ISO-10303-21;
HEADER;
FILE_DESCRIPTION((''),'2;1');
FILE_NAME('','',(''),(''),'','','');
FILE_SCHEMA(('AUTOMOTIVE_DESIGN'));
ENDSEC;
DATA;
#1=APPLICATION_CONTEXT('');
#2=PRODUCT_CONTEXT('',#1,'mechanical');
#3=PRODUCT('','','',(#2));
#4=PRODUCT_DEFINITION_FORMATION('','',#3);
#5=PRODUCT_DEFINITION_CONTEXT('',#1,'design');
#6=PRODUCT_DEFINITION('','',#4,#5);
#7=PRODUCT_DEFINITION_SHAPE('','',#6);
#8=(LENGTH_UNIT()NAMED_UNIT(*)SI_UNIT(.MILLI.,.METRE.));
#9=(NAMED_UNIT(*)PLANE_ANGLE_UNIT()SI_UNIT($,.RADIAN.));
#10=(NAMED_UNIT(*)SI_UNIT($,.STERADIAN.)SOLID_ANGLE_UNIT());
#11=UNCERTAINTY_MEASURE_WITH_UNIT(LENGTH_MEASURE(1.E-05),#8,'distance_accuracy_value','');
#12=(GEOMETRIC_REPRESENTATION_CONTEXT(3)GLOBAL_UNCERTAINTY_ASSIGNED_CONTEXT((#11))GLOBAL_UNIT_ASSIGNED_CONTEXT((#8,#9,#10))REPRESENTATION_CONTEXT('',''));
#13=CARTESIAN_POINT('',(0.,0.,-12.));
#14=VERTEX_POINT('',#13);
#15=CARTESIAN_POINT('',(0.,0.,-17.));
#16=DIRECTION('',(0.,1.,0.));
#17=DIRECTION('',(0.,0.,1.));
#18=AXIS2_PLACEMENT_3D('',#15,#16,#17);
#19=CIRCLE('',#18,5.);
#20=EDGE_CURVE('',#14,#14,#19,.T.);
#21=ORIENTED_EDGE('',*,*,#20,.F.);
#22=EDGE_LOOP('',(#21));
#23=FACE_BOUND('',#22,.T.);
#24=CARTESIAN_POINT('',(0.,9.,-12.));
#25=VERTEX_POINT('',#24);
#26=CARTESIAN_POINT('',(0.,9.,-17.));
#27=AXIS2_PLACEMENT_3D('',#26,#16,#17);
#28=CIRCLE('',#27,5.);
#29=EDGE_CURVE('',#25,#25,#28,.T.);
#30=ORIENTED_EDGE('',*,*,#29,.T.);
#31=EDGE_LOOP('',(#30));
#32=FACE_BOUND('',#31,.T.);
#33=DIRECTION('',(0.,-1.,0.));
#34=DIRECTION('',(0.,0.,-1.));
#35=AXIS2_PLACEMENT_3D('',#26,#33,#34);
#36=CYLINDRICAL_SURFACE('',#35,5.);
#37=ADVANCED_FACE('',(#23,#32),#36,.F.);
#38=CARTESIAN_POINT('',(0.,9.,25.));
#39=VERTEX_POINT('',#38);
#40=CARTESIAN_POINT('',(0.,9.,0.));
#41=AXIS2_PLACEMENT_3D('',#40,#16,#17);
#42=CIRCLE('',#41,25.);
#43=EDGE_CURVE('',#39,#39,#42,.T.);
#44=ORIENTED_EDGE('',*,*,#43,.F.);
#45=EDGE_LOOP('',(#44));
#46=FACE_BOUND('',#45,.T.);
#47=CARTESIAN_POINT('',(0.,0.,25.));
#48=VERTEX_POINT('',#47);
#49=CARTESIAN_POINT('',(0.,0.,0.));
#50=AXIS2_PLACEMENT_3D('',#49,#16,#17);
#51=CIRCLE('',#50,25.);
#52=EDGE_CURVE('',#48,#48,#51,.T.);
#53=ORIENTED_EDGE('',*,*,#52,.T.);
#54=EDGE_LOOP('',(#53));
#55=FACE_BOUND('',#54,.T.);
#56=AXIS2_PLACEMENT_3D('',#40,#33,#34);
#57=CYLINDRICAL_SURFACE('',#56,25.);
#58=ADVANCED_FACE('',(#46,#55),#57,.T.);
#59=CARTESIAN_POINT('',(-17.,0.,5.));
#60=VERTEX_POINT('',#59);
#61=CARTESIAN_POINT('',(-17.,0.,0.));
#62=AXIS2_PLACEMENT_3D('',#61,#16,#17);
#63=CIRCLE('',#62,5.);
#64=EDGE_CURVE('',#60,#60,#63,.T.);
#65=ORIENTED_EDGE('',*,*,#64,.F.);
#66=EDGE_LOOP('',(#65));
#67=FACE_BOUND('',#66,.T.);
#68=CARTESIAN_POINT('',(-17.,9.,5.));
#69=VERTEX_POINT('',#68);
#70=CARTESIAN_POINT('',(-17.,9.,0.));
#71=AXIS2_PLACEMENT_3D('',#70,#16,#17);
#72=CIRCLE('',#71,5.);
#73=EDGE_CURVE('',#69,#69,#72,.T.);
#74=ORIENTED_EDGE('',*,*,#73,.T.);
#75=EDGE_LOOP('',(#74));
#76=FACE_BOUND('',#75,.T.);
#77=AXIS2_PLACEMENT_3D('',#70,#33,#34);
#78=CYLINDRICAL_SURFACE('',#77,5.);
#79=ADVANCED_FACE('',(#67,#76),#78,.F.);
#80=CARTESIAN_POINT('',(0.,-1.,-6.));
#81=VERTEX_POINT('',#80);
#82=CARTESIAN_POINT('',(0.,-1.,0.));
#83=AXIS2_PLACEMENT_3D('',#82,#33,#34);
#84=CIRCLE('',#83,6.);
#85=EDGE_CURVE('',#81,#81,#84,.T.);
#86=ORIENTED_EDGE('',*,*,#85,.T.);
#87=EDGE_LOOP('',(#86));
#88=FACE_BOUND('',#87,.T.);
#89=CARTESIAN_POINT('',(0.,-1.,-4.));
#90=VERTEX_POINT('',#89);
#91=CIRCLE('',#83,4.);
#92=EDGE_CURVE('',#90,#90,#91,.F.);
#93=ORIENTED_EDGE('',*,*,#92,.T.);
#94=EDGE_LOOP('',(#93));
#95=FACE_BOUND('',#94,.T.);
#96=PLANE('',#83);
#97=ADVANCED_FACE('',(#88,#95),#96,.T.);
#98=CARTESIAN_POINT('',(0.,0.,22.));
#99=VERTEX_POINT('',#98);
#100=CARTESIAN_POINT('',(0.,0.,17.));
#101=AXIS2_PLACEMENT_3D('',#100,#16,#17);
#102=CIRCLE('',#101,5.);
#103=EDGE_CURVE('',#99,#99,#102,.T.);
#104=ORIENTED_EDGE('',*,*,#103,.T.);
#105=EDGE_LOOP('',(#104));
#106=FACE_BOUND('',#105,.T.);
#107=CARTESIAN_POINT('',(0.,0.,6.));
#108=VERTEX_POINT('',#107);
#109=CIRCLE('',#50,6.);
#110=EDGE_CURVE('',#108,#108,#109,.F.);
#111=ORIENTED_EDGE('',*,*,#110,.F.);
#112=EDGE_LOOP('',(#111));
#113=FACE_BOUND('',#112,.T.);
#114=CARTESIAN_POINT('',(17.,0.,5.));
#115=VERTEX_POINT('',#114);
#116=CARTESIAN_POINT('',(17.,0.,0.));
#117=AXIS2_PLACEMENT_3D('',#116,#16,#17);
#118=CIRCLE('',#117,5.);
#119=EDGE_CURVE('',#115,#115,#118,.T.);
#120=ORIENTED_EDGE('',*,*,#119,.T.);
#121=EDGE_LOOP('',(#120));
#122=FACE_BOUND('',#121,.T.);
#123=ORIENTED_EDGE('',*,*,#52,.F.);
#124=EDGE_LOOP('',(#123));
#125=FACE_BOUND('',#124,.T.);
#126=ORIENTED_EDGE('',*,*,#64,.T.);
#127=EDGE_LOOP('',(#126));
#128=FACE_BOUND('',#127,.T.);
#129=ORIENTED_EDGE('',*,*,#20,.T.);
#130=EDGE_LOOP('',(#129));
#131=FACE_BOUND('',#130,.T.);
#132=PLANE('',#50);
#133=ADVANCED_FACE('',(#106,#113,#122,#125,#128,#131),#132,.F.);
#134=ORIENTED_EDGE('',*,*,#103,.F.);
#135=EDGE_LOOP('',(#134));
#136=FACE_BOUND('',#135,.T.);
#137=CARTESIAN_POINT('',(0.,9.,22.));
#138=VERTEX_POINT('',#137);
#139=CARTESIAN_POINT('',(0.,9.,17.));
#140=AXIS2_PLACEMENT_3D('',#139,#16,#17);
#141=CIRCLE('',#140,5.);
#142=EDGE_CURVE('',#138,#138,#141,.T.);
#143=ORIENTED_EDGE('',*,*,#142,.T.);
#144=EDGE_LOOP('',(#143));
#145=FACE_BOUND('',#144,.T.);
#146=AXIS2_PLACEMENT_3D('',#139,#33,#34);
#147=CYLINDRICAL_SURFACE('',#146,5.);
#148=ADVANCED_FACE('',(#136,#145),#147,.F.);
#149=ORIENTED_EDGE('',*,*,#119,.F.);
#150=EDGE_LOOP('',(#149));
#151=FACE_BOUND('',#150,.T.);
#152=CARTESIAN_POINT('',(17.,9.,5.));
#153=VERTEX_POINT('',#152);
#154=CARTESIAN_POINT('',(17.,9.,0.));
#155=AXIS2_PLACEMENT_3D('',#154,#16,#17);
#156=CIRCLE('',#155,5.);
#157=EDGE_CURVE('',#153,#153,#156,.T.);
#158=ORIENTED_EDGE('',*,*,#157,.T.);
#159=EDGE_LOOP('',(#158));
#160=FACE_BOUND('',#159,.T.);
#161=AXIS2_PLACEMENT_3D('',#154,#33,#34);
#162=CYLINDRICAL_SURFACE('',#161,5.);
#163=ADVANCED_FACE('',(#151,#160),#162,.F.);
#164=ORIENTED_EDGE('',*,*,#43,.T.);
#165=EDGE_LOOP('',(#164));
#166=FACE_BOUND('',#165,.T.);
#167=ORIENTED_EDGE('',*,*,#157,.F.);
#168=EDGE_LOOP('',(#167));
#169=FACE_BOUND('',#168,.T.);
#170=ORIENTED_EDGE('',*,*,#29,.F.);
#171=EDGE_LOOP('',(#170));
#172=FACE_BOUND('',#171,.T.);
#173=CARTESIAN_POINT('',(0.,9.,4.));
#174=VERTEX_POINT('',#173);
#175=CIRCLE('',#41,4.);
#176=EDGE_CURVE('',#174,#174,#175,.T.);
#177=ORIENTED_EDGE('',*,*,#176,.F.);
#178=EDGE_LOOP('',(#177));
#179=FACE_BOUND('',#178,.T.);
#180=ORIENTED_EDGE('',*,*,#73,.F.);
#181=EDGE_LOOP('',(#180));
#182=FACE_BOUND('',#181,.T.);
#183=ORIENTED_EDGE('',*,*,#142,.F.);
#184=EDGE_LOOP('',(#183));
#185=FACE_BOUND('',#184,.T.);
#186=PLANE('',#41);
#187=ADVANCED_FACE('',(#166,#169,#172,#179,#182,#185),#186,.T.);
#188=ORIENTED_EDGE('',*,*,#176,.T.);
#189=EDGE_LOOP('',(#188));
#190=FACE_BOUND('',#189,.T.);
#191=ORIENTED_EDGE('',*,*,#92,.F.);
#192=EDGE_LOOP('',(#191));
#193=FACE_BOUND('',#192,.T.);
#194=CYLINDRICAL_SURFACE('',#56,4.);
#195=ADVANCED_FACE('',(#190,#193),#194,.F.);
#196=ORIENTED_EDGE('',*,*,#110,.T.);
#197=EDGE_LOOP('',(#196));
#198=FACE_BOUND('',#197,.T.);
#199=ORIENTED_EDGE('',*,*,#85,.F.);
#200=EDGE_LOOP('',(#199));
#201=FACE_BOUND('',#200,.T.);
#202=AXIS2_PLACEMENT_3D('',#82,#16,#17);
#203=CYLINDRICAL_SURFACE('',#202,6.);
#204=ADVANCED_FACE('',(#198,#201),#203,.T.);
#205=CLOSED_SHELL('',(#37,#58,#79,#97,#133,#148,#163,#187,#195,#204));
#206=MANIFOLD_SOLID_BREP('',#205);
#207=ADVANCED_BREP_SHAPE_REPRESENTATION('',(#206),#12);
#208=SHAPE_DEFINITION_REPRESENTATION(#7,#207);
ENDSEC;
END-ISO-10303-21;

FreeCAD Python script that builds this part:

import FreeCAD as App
import Part
import Sketcher

V = App.Vector

doc = App.newDocument("Part")
body = doc.addObject("PartDesign::Body", "Body")

sketch1 = body.newObject("Sketcher::SketchObject", "Sketch")
sketch1.AttachmentSupport = (doc.getObject("XZ_Plane"), [""])
sketch1.MapMode = "FlatFace"
sketch1.addGeometry(Part.Circle(V(0, 0, 0), V(0, 0, 1), 25), False)
sketch1.addGeometry(Part.Circle(V(0, -17, 0), V(0, 0, 1), 5), False)
sketch1.addGeometry(Part.Circle(V(-17, 0, 0), V(0, 0, 1), 5), False)
sketch1.addGeometry(Part.Circle(V(17, 0, 0), V(0, 0, 1), 5), False)
sketch1.addGeometry(Part.Circle(V(0, 0, 0), V(0, 0, 1), 4), False)
sketch1.addGeometry(Part.Circle(V(0, 17, 0), V(0, 0, 1), 5), False)
sketch1.addConstraint(Sketcher.Constraint("Coincident", 0, 3, -1, 1))
sketch1.addConstraint(Sketcher.Constraint("Coincident", 4, 3, -1, 1))
sketch1.addConstraint(Sketcher.Constraint("Equal", 1, 2))
sketch1.addConstraint(Sketcher.Constraint("Equal", 2, 3))
sketch1.addConstraint(Sketcher.Constraint("Equal", 3, 5))
sketch1.addConstraint(Sketcher.Constraint("Symmetric", 2, 3, 3, 3, -1, 1))
sketch1.addConstraint(Sketcher.Constraint("Symmetric", 1, 3, 5, 3, -1, 1))
sketch1.addConstraint(Sketcher.Constraint("PointOnObject", 1, 3, -2))
sketch1.addConstraint(Sketcher.Constraint("PointOnObject", 2, 3, -1))
sketch1.addConstraint(Sketcher.Constraint("Diameter", 0, 50.0))
sketch1.addConstraint(Sketcher.Constraint("Diameter", 1, 10.0))
sketch1.addConstraint(Sketcher.Constraint("Diameter", 4, 8.0))
sketch1.addConstraint(Sketcher.Constraint("DistanceY", 1, 3, -1, 1, 17.0))
sketch1.addConstraint(Sketcher.Constraint("DistanceX", 2, 3, -1, 1, 17.0))
pad1 = body.newObject("PartDesign::Pad", "Pad")
pad1.Profile = sketch1
pad1.Length = 9
pad1.Reversed = True

sketch2 = body.newObject("Sketcher::SketchObject", "Sketch001")
sketch2.AttachmentSupport = (doc.getObject("XZ_Plane"), [""])
sketch2.MapMode = "FlatFace"
sketch2.AttachmentOffset = App.Placement(V(0, 0, 1), App.Rotation())
sketch2.addGeometry(Part.Circle(V(0, 0, 0), V(0, 0, 1), 6), False)
sketch2.addGeometry(Part.Circle(V(0, 0, 0), V(0, 0, 1), 4), False)
sketch2.addConstraint(Sketcher.Constraint("Coincident", 0, 3, -1, 1))
sketch2.addConstraint(Sketcher.Constraint("Coincident", 1, 3, -1, 1))
sketch2.addConstraint(Sketcher.Constraint("Diameter", 0, 12.0))
sketch2.addConstraint(Sketcher.Constraint("Diameter", 1, 8.0))
pad2 = body.newObject("PartDesign::Pad", "Pad001")
pad2.Profile = sketch2
pad2.Length = 1
pad2.Reversed = True

doc.recompute()
